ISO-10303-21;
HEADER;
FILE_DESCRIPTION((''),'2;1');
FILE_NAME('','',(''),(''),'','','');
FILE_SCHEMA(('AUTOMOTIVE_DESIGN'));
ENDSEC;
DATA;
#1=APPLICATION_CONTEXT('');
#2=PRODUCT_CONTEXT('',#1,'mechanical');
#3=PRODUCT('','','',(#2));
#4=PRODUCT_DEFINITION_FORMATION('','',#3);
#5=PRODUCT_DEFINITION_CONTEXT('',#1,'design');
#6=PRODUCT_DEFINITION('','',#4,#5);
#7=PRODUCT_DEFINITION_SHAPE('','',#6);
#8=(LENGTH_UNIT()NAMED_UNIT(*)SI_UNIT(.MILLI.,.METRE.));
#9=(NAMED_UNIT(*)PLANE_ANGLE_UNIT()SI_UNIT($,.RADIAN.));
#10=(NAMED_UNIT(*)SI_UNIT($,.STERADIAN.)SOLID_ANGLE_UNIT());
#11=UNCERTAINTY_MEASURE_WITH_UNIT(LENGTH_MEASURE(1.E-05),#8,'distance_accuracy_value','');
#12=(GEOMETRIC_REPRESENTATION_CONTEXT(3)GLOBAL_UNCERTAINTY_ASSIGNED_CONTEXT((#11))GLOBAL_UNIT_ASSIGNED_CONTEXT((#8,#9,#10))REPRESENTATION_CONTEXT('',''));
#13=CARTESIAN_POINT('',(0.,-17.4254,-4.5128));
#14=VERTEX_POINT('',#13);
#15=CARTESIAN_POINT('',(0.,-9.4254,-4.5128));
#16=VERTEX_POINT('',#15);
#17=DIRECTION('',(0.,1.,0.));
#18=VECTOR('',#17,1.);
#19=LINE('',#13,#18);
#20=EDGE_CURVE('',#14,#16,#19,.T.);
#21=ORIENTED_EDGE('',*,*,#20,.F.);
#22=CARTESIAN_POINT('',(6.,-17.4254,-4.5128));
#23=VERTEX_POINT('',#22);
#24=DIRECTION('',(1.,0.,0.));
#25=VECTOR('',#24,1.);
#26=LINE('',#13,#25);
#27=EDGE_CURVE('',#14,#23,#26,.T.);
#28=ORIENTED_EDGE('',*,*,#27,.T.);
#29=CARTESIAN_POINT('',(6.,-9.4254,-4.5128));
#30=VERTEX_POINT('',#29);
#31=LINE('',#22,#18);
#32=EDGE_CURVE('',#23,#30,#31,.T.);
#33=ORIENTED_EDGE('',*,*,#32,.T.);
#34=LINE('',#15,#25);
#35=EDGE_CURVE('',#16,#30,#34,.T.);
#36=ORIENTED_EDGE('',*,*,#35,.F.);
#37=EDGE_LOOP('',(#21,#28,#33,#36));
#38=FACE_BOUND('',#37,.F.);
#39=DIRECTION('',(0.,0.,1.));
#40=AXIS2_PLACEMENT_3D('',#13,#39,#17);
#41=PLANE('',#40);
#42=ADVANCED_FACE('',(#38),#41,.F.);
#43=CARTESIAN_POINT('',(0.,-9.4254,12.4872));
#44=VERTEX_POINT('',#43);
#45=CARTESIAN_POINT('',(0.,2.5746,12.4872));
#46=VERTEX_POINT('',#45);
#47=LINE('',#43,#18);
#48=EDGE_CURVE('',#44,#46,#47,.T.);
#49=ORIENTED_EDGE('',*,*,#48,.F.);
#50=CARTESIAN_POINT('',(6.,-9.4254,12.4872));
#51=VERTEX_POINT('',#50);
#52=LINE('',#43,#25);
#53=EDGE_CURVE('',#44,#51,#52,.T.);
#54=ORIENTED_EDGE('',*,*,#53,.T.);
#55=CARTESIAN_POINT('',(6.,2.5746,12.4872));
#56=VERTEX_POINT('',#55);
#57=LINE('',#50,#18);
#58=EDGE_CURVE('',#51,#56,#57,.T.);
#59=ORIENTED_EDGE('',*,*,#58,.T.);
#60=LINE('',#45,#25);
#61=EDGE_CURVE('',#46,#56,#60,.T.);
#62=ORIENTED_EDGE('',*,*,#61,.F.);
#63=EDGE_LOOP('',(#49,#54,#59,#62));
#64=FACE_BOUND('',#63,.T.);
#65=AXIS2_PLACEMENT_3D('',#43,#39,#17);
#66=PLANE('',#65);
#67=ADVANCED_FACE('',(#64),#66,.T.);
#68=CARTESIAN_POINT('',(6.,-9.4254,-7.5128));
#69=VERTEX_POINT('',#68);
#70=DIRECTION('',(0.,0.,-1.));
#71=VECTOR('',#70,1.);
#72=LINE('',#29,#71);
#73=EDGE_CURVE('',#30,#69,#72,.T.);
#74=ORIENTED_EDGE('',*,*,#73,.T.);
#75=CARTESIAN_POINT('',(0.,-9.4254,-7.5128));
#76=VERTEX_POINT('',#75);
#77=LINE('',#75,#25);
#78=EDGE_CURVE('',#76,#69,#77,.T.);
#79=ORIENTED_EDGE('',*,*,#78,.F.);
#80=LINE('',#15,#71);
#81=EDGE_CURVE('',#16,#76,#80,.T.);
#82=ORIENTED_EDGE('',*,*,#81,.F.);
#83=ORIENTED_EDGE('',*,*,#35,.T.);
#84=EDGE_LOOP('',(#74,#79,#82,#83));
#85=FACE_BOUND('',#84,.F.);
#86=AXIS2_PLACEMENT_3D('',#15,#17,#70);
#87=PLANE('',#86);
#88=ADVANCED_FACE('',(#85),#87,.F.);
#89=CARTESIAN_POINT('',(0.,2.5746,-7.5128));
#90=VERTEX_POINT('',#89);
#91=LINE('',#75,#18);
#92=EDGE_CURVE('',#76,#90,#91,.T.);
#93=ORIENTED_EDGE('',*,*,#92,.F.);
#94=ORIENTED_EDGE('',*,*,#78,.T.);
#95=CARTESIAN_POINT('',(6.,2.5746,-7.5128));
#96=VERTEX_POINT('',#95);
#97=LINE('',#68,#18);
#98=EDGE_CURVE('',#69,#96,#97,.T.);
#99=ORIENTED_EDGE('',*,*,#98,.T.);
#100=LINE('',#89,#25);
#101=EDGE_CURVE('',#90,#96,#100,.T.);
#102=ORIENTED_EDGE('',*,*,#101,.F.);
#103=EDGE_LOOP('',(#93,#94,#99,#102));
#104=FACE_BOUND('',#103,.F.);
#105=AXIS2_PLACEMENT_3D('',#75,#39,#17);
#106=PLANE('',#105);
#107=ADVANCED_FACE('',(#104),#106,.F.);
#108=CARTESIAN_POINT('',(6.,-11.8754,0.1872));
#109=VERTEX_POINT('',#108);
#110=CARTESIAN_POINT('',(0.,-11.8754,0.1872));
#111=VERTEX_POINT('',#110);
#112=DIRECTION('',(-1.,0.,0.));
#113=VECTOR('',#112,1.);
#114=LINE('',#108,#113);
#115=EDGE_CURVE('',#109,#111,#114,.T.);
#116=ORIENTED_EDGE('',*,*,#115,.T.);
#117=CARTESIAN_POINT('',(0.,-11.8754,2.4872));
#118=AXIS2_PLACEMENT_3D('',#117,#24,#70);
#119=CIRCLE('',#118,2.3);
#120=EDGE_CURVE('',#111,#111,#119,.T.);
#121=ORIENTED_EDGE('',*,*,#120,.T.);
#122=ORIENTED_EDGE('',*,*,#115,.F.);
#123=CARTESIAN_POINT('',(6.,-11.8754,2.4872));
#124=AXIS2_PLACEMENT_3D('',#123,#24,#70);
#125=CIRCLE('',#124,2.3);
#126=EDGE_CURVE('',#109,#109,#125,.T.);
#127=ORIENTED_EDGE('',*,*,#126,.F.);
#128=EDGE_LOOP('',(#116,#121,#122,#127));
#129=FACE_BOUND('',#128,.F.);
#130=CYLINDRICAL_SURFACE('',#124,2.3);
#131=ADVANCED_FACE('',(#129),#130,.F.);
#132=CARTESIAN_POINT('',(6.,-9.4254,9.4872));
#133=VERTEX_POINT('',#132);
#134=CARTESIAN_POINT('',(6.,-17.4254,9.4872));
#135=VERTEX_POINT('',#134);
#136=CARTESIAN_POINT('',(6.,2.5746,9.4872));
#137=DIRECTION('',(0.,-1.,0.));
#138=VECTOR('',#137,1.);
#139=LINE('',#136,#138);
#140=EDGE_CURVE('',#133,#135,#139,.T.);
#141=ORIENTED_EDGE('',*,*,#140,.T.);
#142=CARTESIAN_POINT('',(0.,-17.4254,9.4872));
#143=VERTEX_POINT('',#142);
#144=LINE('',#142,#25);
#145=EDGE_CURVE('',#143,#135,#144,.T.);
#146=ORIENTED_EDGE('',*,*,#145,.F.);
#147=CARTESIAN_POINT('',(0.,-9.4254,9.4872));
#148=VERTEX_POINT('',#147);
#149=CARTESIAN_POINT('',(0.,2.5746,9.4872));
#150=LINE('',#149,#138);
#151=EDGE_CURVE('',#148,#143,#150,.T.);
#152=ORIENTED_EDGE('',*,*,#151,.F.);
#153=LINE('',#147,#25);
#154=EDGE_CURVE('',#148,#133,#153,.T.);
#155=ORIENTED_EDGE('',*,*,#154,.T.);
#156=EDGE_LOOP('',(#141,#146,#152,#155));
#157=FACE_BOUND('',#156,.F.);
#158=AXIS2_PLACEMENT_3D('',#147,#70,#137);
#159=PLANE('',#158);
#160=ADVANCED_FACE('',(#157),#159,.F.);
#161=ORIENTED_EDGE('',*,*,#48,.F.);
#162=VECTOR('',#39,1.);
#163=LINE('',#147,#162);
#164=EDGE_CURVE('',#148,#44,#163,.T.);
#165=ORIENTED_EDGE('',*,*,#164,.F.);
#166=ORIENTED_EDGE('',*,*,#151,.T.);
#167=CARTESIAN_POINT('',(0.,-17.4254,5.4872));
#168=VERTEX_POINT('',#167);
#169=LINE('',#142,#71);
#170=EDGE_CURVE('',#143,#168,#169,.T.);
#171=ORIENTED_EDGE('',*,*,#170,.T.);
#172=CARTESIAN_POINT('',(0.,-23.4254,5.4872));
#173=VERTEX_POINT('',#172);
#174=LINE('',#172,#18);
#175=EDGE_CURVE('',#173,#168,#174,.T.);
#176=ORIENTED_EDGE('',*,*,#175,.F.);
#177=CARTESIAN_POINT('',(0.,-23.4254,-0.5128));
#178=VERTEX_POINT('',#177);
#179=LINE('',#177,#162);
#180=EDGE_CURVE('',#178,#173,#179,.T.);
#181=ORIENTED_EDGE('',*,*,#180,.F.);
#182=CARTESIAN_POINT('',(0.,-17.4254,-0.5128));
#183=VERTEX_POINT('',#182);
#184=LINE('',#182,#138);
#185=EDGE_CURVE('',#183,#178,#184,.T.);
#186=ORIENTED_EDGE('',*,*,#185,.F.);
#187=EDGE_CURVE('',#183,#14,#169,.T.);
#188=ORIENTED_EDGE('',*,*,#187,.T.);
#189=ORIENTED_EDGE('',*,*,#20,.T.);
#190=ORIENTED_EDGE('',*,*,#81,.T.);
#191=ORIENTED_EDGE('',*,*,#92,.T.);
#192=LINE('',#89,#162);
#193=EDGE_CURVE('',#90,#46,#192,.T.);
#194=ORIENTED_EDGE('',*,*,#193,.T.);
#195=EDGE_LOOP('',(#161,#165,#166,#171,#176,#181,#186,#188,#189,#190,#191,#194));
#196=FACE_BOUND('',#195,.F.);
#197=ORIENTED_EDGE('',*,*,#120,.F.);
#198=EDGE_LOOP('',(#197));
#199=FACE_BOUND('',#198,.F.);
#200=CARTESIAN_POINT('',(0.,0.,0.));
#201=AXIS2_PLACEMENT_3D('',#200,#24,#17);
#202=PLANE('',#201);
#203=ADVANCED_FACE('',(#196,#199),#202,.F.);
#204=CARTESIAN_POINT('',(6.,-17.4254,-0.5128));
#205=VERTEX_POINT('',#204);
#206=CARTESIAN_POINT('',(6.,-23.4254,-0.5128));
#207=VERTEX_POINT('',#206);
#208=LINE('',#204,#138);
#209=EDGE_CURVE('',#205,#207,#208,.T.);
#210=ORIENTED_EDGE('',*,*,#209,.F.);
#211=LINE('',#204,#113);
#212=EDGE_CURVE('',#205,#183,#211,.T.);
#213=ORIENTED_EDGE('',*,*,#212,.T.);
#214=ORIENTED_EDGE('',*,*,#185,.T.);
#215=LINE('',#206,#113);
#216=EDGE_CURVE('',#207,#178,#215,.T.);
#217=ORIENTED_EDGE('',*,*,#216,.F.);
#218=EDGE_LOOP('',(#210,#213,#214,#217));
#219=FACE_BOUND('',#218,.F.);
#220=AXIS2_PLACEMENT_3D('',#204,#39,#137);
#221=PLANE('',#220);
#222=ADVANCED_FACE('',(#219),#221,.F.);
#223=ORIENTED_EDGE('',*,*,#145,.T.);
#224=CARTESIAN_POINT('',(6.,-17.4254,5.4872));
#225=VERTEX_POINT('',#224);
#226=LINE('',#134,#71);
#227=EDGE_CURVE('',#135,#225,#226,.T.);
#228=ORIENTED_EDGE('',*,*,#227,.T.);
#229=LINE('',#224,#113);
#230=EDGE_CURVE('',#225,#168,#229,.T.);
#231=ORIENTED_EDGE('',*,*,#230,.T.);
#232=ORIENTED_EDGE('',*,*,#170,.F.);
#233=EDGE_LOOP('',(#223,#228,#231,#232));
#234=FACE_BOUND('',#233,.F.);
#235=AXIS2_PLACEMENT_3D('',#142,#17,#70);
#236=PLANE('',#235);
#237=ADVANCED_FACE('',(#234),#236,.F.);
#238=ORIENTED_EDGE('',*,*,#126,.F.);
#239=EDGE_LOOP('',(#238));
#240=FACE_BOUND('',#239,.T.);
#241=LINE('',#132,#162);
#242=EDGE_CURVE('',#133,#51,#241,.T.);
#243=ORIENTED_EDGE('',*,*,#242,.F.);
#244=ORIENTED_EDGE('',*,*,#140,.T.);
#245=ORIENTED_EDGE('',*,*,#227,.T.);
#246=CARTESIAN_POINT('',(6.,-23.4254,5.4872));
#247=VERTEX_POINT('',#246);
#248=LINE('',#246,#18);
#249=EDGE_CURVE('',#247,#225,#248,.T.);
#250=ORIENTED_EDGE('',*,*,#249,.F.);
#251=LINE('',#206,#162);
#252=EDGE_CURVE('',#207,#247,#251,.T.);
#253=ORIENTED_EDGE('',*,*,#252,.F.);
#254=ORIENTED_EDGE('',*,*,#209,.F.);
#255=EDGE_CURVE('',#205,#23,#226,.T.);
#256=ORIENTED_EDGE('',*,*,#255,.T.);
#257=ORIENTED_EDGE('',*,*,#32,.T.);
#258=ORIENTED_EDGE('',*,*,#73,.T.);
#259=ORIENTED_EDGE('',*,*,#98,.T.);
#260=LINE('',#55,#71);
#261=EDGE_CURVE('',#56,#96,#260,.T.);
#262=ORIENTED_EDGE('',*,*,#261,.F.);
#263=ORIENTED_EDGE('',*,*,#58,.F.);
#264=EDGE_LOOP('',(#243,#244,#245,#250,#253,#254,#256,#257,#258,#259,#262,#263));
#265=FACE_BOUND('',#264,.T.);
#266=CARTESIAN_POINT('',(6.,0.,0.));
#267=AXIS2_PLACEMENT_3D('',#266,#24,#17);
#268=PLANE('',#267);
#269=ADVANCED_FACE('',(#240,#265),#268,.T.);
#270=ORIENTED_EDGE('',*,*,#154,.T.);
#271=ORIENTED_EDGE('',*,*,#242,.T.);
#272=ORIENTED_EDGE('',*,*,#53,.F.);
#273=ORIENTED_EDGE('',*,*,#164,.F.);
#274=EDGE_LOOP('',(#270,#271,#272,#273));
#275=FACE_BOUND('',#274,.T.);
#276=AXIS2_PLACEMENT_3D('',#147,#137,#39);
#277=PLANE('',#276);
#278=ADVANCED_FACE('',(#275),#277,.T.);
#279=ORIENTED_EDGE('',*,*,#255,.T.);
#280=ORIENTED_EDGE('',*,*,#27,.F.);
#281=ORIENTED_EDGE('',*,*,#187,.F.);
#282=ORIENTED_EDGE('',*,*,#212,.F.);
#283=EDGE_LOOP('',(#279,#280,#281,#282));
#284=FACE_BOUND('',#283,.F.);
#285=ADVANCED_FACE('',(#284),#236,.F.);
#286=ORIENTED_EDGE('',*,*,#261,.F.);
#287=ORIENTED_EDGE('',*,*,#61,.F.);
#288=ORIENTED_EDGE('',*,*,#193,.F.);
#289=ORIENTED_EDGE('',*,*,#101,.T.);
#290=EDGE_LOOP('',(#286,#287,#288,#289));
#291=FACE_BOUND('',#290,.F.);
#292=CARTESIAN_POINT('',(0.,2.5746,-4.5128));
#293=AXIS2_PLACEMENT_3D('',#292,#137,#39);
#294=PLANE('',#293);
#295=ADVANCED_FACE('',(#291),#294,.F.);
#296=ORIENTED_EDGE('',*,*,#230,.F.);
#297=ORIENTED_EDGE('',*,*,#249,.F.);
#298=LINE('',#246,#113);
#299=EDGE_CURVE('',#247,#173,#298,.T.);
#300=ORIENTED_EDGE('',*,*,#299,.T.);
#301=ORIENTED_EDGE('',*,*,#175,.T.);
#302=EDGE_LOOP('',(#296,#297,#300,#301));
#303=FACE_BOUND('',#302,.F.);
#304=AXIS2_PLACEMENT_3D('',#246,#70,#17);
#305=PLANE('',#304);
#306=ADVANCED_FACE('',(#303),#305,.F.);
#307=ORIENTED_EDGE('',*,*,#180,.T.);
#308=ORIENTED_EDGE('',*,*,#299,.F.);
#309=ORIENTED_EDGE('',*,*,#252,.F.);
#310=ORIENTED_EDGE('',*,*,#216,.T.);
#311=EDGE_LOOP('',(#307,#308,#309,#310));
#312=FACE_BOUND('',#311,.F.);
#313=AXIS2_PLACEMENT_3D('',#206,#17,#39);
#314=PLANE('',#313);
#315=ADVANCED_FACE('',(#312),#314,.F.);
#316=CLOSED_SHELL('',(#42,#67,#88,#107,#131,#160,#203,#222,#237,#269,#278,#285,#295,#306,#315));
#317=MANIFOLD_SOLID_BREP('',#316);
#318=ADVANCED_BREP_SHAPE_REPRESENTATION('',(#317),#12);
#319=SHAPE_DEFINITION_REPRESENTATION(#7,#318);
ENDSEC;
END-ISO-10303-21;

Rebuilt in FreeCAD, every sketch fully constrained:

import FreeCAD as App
import Part
import Sketcher

V = App.Vector
Q = App.Units.Quantity


def add_polygon(sketch, points):
    """Adds a closed chain of lines whose ends are joined by coincident constraints."""
    first, n = sketch.GeometryCount, len(points)
    for a, b in zip(points, points[1:] + points[:1]):
        sketch.addGeometry(Part.LineSegment(App.Vector(*a, 0), App.Vector(*b, 0)), False)
    for i in range(n):
        sketch.addConstraint(Sketcher.Constraint("Coincident", first + i, 2, first + (i + 1) % n, 1))

doc = App.newDocument("Part")
body = doc.addObject("PartDesign::Body", "Body")

# Sketch on YZ plane
sketch1 = doc.addObject("Sketcher::SketchObject", "Sketch")
body.addObject(sketch1)
sketch1.AttachmentSupport = (doc.YZ_Plane, [""])
sketch1.MapMode = "FlatFace"
add_polygon(sketch1, [(2.6, 12.5), (-9.4, 12.5), (-9.4, 9.5), (-17.4, 9.5), (-17.4, -4.5), (-9.4, -4.5), (-9.4, -7.5), (2.6, -7.5)])  # lines 0-7
sketch1.addConstraint(Sketcher.Constraint("Horizontal", 0))
sketch1.addConstraint(Sketcher.Constraint("Vertical", 1))
sketch1.addConstraint(Sketcher.Constraint("Horizontal", 2))
sketch1.addConstraint(Sketcher.Constraint("Vertical", 3))
sketch1.addConstraint(Sketcher.Constraint("Horizontal", 4))
sketch1.addConstraint(Sketcher.Constraint("Vertical", 5))
sketch1.addConstraint(Sketcher.Constraint("Horizontal", 6))
sketch1.addConstraint(Sketcher.Constraint("Vertical", 7))
sketch1.addConstraint(Sketcher.Constraint("Vertical", 1, 2, 4, 2))
sketch1.addConstraint(Sketcher.Constraint("Equal", 1, 5))
sketch1.addConstraint(Sketcher.Constraint("DistanceX", 0, 2, 0, 1, Q("12 mm")))
sketch1.addConstraint(Sketcher.Constraint("DistanceY", 1, 2, 1, 1, Q("3 mm")))
sketch1.addConstraint(Sketcher.Constraint("DistanceY", 3, 2, 3, 1, Q("14 mm")))
sketch1.addConstraint(Sketcher.Constraint("DistanceX", 3, 2, 6, 2, Q("20 mm")))
sketch1.addConstraint(Sketcher.Constraint("DistanceX", 0, 2, -1, 1, Q("9.4254 mm")))
sketch1.addConstraint(Sketcher.Constraint("DistanceY", -1, 1, 0, 2, Q("12.4872 mm")))
pad1 = doc.addObject("PartDesign::Pad", "Pad")
body.addObject(pad1)
pad1.Profile = sketch1
pad1.Length = 6

# Sketch on YZ plane
sketch2 = doc.addObject("Sketcher::SketchObject", "Sketch001")
body.addObject(sketch2)
sketch2.AttachmentSupport = (doc.YZ_Plane, [""])
sketch2.MapMode = "FlatFace"
sketch2.AttachmentOffset = App.Placement(V(0, 0, 6), App.Rotation())
sketch2.addGeometry(Part.Circle(V(-11.9, 2.5, 0), V(0, 0, 1), 2.3), False)
sketch2.addConstraint(Sketcher.Constraint("Diameter", 0, Q("4.6 mm")))
sketch2.addConstraint(Sketcher.Constraint("DistanceX", 0, 3, -1, 1, Q("11.8754 mm")))
sketch2.addConstraint(Sketcher.Constraint("DistanceY", -1, 1, 0, 3, Q("2.4872 mm")))
pocket1 = doc.addObject("PartDesign::Pocket", "Pocket")
body.addObject(pocket1)
pocket1.Profile = sketch2
pocket1.Length = 6

# Sketch on YZ plane
sketch3 = doc.addObject("Sketcher::SketchObject", "Sketch002")
body.addObject(sketch3)
sketch3.AttachmentSupport = (doc.YZ_Plane, [""])
sketch3.MapMode = "FlatFace"
sketch3.AttachmentOffset = App.Placement(V(0, 0, 6), App.Rotation())
add_polygon(sketch3, [(-17, -1), (-17, 5), (-23, 5), (-23, -1)])  # lines 0-3
sketch3.addConstraint(Sketcher.Constraint("Vertical", 0))
sketch3.addConstraint(Sketcher.Constraint("Horizontal", 1))
sketch3.addConstraint(Sketcher.Constraint("Vertical", 2))
sketch3.addConstraint(Sketcher.Constraint("Horizontal", 3))
sketch3.addConstraint(Sketcher.Constraint("Equal", 3, 0))
sketch3.addConstraint(Sketcher.Constraint("DistanceX", 1, 2, 1, 1, Q("6 mm")))
sketch3.addConstraint(Sketcher.Constraint("DistanceX", 0, 2, -1, 1, Q("17.4254 mm")))
sketch3.addConstraint(Sketcher.Constraint("DistanceY", -1, 1, 0, 2, Q("5.4872 mm")))
pad2 = doc.addObject("PartDesign::Pad", "Pad001")
body.addObject(pad2)
pad2.Profile = sketch3
pad2.Length = 6
pad2.Reversed = True

doc.recompute()
